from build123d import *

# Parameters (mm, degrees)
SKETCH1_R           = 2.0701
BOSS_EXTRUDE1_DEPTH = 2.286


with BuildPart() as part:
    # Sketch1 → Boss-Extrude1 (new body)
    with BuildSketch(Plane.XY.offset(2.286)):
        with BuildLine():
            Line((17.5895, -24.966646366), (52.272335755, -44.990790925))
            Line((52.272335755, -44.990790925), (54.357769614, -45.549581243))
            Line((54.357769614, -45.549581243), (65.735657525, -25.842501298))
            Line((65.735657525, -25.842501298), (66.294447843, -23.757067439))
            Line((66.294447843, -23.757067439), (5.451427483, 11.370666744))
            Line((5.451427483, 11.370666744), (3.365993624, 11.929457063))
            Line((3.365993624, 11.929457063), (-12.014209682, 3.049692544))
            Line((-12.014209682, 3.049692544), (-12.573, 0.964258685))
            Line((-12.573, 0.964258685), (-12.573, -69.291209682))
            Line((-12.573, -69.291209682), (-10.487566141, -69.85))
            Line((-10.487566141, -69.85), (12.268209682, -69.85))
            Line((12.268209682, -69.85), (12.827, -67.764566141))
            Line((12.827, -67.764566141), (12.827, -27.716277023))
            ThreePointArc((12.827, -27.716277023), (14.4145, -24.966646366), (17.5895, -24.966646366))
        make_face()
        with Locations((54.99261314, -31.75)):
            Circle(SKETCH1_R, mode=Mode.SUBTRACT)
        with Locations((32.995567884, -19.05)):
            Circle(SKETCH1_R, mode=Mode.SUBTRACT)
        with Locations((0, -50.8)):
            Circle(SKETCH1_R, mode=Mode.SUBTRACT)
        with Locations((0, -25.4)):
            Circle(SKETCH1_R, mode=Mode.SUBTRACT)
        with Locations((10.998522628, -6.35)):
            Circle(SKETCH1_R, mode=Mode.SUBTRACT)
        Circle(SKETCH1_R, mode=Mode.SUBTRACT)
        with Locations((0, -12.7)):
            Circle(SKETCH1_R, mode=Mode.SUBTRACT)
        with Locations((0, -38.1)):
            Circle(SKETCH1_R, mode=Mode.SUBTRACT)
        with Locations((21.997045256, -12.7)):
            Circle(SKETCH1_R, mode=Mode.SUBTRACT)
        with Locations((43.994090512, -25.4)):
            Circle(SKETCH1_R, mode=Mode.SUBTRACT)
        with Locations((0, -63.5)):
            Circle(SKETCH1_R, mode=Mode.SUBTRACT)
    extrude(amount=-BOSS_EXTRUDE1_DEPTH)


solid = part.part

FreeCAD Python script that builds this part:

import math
import FreeCAD as App
import Part
import Sketcher
Q = App.Units.Quantity

doc = App.newDocument("Part")
params = doc.addObject("Spreadsheet::Sheet", "Params")
for row, (alias, value) in enumerate([
    ("sketch1_diameter", "0.163 in"),
    ("sketch1_radius", "0.125 in"),
    ("sketch1_length", "0.085 in"),
    ("pad1_length", "0.09 in"),
], start=1):
    params.set(f"A{row}", alias)
    params.set(f"B{row}", "=" + value)
    params.setAlias(f"B{row}", alias)

body = doc.addObject("PartDesign::Body", "Body")

# Sketch on XY plane
sketch1 = body.newObject("Sketcher::SketchObject", "Sketch")
sketch1.AttachmentSupport = (doc.getObject("XY_Plane"), [""])
sketch1.MapMode = "FlatFace"
sketch1.AttachmentOffset = App.Placement(App.Vector(0, 0, 0.09 * 25.4), App.Rotation())
sketch1.addGeometry([
    Part.LineSegment(App.Vector(17.5895, -24.966646, 0), App.Vector(52.272336, -44.990791, 0)),  # 0
    Part.LineSegment(App.Vector(52.272336, -44.990791, 0), App.Vector(54.35777, -45.549581, 0)),  # 1
    Part.LineSegment(App.Vector(54.35777, -45.549581, 0), App.Vector(65.735658, -25.842501, 0)),  # 2
    Part.LineSegment(App.Vector(65.735658, -25.842501, 0), App.Vector(66.294448, -23.757067, 0)),  # 3
    Part.LineSegment(App.Vector(66.294448, -23.757067, 0), App.Vector(5.451427, 11.370667, 0)),  # 4
    Part.LineSegment(App.Vector(5.451427, 11.370667, 0), App.Vector(3.365994, 11.929457, 0)),  # 5
    Part.LineSegment(App.Vector(3.365994, 11.929457, 0), App.Vector(-12.01421, 3.049693, 0)),  # 6
    Part.LineSegment(App.Vector(-12.01421, 3.049693, 0), App.Vector(-12.573, 0.964259, 0)),  # 7
    Part.LineSegment(App.Vector(-12.573, 0.964259, 0), App.Vector(-12.573, -69.29121, 0)),  # 8
    Part.LineSegment(App.Vector(-12.573, -69.29121, 0), App.Vector(-10.487566, -69.85, 0)),  # 9
    Part.LineSegment(App.Vector(-10.487566, -69.85, 0), App.Vector(12.26821, -69.85, 0)),  # 10
    Part.LineSegment(App.Vector(12.26821, -69.85, 0), App.Vector(12.827, -67.764566, 0)),  # 11
    Part.LineSegment(App.Vector(12.827, -67.764566, 0), App.Vector(12.827, -27.716277, 0)),  # 12
    Part.ArcOfCircle(Part.Circle(App.Vector(16.002, -27.716277, 0), App.Vector(0, 0, 1), 3.175), math.radians(60), math.radians(180)),  # 13
    Part.Circle(App.Vector(0, -63.5, 0), App.Vector(0, 0, 1), 2.0701),  # 14
    Part.Circle(App.Vector(0, -50.8, 0), App.Vector(0, 0, 1), 2.0701),  # 15
    Part.Circle(App.Vector(0, -38.1, 0), App.Vector(0, 0, 1), 2.0701),  # 16
    Part.Circle(App.Vector(0, -25.4, 0), App.Vector(0, 0, 1), 2.0701),  # 17
    Part.Circle(App.Vector(0, -12.7, 0), App.Vector(0, 0, 1), 2.0701),  # 18
    Part.Circle(App.Vector(0, 0, 0), App.Vector(0, 0, 1), 2.0701),  # 19
    Part.Circle(App.Vector(10.998523, -6.35, 0), App.Vector(0, 0, 1), 2.0701),  # 20
    Part.Circle(App.Vector(21.997045, -12.7, 0), App.Vector(0, 0, 1), 2.0701),  # 21
    Part.Circle(App.Vector(32.995568, -19.05, 0), App.Vector(0, 0, 1), 2.0701),  # 22
    Part.Circle(App.Vector(43.994091, -25.4, 0), App.Vector(0, 0, 1), 2.0701),  # 23
    Part.Circle(App.Vector(54.992613, -31.75, 0), App.Vector(0, 0, 1), 2.0701),  # 24
], False)
sketch1.addConstraint([
    Sketcher.Constraint("Coincident", 0, 2, 1, 1),
    Sketcher.Constraint("Coincident", 1, 2, 2, 1),
    Sketcher.Constraint("Coincident", 2, 2, 3, 1),
    Sketcher.Constraint("Coincident", 3, 2, 4, 1),
    Sketcher.Constraint("Coincident", 4, 2, 5, 1),
    Sketcher.Constraint("Coincident", 5, 2, 6, 1),
    Sketcher.Constraint("Coincident", 6, 2, 7, 1),
    Sketcher.Constraint("Coincident", 7, 2, 8, 1),
    Sketcher.Constraint("Coincident", 8, 2, 9, 1),
    Sketcher.Constraint("Coincident", 9, 2, 10, 1),
    Sketcher.Constraint("Coincident", 10, 2, 11, 1),
    Sketcher.Constraint("Coincident", 11, 2, 12, 1),
    Sketcher.Constraint("Tangent", 12, 2, 13, 2),
    Sketcher.Constraint("Tangent", 13, 1, 0, 1),
    Sketcher.Constraint("Vertical", 8),
    Sketcher.Constraint("Horizontal", 10),
    Sketcher.Constraint("Vertical", 12),
    Sketcher.Constraint("Coincident", 19, 3, -1, 1),
    Sketcher.Constraint("Equal", 14, 15),
    Sketcher.Constraint("Equal", 15, 16),
    Sketcher.Constraint("Equal", 16, 17),
    Sketcher.Constraint("Equal", 17, 18),
    Sketcher.Constraint("Equal", 18, 19),
    Sketcher.Constraint("Equal", 19, 20),
    Sketcher.Constraint("Equal", 20, 21),
    Sketcher.Constraint("Equal", 21, 22),
    Sketcher.Constraint("Equal", 22, 23),
    Sketcher.Constraint("Equal", 23, 24),
    Sketcher.Constraint("PointOnObject", 14, 3, -2),
    Sketcher.Constraint("PointOnObject", 15, 3, -2),
    Sketcher.Constraint("PointOnObject", 16, 3, -2),
    Sketcher.Constraint("PointOnObject", 17, 3, -2),
    Sketcher.Constraint("PointOnObject", 18, 3, -2),
    Sketcher.Constraint("Perpendicular", 0, 2),
    Sketcher.Constraint("Perpendicular", 1, 3),
    Sketcher.Constraint("Perpendicular", 2, 4),
    Sketcher.Constraint("Perpendicular", 3, 5),
    Sketcher.Constraint("Perpendicular", 5, 7),
    Sketcher.Constraint("Perpendicular", 7, 9),
    Sketcher.Constraint("Perpendicular", 9, 11),
    Sketcher.Constraint("Horizontal", 18, 3, 21, 3),
    Sketcher.Constraint("Horizontal", 17, 3, 23, 3),
    Sketcher.Constraint("Equal", 1, 3),
    Sketcher.Constraint("Equal", 3, 5),
    Sketcher.Constraint("Equal", 5, 7),
    Sketcher.Constraint("Equal", 7, 9),
    Sketcher.Constraint("Equal", 9, 11),
    Sketcher.Constraint("Diameter", 14, Q("0.163 in")),
    Sketcher.Constraint("DistanceY", 15, 3, -1, 1, Q("2 in")),
    Sketcher.Constraint("DistanceY", 17, 3, -1, 1, Q("1 in")),
    Sketcher.Constraint("Angle", 0, Q("-30 deg")),
    Sketcher.Constraint("Angle", 1, Q("-15 deg")),
    Sketcher.Constraint("Angle", 6, Q("-150 deg")),
    Sketcher.Constraint("Radius", 13, Q("0.125 in")),
    Sketcher.Constraint("DistanceY", 14, 3, 16, 3, Q("1 in")),
    Sketcher.Constraint("DistanceY", 16, 3, 18, 3, Q("1 in")),
    Sketcher.Constraint("DistanceY", 24, 3, 20, 3, Q("1 in")),
    Sketcher.Constraint("DistanceX", 8, 2, 11, 2, Q("1 in")),
    Sketcher.Constraint("DistanceY", 14, 3, -1, 1, Q("2.5 in")),
    Sketcher.Constraint("DistanceY", 22, 3, 20, 3, Q("0.5 in")),
    Sketcher.Constraint("DistanceX", -1, 1, 13, 3, Q("0.63 in")),
    Sketcher.Constraint("DistanceY", 20, 3, -1, 1, Q("0.25 in")),
    Sketcher.Constraint("DistanceY", 9, 2, -1, 1, Q("2.75 in")),
    Sketcher.Constraint("Distance", 1, Q("0.085 in")),
    Sketcher.Constraint("DistanceY", 8, 2, 8, 1, Q("70.255468 mm")),
    Sketcher.Constraint("DistanceY", 12, 1, 12, 2, Q("40.048289 mm")),
    Sketcher.Constraint("DistanceY", 2, 2, -1, 1, Q("25.842501 mm")),
    Sketcher.Constraint("DistanceX", 22, 3, 1, 2, Q("21.362202 mm")),
    Sketcher.Constraint("DistanceY", 7, 2, 5, 2, Q("10.965198 mm")),
    Sketcher.Constraint("DistanceX", -1, 1, 23, 3, Q("43.994091 mm")),
    Sketcher.Constraint("DistanceX", 20, 3, 24, 3, Q("43.994091 mm")),
    Sketcher.Constraint("DistanceX", 21, 3, 0, 2, Q("30.27529 mm")),
    Sketcher.Constraint("DistanceX", 5, 2, 20, 3, Q("7.632529 mm")),
])
sketch1.setExpression("Constraints[47]", "Params.sketch1_diameter")
sketch1.setExpression("Constraints[53]", "Params.sketch1_radius")
sketch1.setExpression("Constraints[63]", "Params.sketch1_length")
pad1 = body.newObject("PartDesign::Pad", "Pad")
pad1.Profile = sketch1
pad1.setExpression("Length", "Params.pad1_length")
pad1.Reversed = True

doc.recompute()
